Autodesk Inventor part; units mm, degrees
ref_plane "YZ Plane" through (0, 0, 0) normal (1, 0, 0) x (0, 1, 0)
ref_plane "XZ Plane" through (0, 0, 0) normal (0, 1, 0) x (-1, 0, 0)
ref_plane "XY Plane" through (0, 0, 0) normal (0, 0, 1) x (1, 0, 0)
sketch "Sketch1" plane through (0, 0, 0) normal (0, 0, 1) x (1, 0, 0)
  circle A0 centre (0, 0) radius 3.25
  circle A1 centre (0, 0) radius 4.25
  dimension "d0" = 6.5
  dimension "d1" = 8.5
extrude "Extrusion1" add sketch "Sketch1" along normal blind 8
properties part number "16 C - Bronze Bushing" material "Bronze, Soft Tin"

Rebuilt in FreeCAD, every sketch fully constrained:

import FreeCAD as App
import Part
import Sketcher
from FreeCAD import Vector
Q = App.Units.Quantity

doc = App.newDocument("Part")
body = doc.addObject("PartDesign::Body", "Body")

sketch1 = doc.addObject("Sketcher::SketchObject", "Sketch")
body.addObject(sketch1)
sketch1.AttachmentSupport = (doc.XY_Plane, [""])
sketch1.MapMode = "FlatFace"
sketch1.addGeometry(Part.Circle(Vector(0, 0, 0), Vector(0, 0, 1), 4.2), False)
sketch1.addGeometry(Part.Circle(Vector(0, 0, 0), Vector(0, 0, 1), 3.2), False)
sketch1.addConstraint(Sketcher.Constraint("Coincident", 0, 3, -1, 1))
sketch1.addConstraint(Sketcher.Constraint("Coincident", 1, 3, -1, 1))
sketch1.addConstraint(Sketcher.Constraint("Diameter", 0, Q("8.5 mm")))
sketch1.addConstraint(Sketcher.Constraint("Diameter", 1, Q("6.5 mm")))
pad1 = doc.addObject("PartDesign::Pad", "Pad")
body.addObject(pad1)
pad1.Profile = sketch1
pad1.Length = 8

doc.recompute()
